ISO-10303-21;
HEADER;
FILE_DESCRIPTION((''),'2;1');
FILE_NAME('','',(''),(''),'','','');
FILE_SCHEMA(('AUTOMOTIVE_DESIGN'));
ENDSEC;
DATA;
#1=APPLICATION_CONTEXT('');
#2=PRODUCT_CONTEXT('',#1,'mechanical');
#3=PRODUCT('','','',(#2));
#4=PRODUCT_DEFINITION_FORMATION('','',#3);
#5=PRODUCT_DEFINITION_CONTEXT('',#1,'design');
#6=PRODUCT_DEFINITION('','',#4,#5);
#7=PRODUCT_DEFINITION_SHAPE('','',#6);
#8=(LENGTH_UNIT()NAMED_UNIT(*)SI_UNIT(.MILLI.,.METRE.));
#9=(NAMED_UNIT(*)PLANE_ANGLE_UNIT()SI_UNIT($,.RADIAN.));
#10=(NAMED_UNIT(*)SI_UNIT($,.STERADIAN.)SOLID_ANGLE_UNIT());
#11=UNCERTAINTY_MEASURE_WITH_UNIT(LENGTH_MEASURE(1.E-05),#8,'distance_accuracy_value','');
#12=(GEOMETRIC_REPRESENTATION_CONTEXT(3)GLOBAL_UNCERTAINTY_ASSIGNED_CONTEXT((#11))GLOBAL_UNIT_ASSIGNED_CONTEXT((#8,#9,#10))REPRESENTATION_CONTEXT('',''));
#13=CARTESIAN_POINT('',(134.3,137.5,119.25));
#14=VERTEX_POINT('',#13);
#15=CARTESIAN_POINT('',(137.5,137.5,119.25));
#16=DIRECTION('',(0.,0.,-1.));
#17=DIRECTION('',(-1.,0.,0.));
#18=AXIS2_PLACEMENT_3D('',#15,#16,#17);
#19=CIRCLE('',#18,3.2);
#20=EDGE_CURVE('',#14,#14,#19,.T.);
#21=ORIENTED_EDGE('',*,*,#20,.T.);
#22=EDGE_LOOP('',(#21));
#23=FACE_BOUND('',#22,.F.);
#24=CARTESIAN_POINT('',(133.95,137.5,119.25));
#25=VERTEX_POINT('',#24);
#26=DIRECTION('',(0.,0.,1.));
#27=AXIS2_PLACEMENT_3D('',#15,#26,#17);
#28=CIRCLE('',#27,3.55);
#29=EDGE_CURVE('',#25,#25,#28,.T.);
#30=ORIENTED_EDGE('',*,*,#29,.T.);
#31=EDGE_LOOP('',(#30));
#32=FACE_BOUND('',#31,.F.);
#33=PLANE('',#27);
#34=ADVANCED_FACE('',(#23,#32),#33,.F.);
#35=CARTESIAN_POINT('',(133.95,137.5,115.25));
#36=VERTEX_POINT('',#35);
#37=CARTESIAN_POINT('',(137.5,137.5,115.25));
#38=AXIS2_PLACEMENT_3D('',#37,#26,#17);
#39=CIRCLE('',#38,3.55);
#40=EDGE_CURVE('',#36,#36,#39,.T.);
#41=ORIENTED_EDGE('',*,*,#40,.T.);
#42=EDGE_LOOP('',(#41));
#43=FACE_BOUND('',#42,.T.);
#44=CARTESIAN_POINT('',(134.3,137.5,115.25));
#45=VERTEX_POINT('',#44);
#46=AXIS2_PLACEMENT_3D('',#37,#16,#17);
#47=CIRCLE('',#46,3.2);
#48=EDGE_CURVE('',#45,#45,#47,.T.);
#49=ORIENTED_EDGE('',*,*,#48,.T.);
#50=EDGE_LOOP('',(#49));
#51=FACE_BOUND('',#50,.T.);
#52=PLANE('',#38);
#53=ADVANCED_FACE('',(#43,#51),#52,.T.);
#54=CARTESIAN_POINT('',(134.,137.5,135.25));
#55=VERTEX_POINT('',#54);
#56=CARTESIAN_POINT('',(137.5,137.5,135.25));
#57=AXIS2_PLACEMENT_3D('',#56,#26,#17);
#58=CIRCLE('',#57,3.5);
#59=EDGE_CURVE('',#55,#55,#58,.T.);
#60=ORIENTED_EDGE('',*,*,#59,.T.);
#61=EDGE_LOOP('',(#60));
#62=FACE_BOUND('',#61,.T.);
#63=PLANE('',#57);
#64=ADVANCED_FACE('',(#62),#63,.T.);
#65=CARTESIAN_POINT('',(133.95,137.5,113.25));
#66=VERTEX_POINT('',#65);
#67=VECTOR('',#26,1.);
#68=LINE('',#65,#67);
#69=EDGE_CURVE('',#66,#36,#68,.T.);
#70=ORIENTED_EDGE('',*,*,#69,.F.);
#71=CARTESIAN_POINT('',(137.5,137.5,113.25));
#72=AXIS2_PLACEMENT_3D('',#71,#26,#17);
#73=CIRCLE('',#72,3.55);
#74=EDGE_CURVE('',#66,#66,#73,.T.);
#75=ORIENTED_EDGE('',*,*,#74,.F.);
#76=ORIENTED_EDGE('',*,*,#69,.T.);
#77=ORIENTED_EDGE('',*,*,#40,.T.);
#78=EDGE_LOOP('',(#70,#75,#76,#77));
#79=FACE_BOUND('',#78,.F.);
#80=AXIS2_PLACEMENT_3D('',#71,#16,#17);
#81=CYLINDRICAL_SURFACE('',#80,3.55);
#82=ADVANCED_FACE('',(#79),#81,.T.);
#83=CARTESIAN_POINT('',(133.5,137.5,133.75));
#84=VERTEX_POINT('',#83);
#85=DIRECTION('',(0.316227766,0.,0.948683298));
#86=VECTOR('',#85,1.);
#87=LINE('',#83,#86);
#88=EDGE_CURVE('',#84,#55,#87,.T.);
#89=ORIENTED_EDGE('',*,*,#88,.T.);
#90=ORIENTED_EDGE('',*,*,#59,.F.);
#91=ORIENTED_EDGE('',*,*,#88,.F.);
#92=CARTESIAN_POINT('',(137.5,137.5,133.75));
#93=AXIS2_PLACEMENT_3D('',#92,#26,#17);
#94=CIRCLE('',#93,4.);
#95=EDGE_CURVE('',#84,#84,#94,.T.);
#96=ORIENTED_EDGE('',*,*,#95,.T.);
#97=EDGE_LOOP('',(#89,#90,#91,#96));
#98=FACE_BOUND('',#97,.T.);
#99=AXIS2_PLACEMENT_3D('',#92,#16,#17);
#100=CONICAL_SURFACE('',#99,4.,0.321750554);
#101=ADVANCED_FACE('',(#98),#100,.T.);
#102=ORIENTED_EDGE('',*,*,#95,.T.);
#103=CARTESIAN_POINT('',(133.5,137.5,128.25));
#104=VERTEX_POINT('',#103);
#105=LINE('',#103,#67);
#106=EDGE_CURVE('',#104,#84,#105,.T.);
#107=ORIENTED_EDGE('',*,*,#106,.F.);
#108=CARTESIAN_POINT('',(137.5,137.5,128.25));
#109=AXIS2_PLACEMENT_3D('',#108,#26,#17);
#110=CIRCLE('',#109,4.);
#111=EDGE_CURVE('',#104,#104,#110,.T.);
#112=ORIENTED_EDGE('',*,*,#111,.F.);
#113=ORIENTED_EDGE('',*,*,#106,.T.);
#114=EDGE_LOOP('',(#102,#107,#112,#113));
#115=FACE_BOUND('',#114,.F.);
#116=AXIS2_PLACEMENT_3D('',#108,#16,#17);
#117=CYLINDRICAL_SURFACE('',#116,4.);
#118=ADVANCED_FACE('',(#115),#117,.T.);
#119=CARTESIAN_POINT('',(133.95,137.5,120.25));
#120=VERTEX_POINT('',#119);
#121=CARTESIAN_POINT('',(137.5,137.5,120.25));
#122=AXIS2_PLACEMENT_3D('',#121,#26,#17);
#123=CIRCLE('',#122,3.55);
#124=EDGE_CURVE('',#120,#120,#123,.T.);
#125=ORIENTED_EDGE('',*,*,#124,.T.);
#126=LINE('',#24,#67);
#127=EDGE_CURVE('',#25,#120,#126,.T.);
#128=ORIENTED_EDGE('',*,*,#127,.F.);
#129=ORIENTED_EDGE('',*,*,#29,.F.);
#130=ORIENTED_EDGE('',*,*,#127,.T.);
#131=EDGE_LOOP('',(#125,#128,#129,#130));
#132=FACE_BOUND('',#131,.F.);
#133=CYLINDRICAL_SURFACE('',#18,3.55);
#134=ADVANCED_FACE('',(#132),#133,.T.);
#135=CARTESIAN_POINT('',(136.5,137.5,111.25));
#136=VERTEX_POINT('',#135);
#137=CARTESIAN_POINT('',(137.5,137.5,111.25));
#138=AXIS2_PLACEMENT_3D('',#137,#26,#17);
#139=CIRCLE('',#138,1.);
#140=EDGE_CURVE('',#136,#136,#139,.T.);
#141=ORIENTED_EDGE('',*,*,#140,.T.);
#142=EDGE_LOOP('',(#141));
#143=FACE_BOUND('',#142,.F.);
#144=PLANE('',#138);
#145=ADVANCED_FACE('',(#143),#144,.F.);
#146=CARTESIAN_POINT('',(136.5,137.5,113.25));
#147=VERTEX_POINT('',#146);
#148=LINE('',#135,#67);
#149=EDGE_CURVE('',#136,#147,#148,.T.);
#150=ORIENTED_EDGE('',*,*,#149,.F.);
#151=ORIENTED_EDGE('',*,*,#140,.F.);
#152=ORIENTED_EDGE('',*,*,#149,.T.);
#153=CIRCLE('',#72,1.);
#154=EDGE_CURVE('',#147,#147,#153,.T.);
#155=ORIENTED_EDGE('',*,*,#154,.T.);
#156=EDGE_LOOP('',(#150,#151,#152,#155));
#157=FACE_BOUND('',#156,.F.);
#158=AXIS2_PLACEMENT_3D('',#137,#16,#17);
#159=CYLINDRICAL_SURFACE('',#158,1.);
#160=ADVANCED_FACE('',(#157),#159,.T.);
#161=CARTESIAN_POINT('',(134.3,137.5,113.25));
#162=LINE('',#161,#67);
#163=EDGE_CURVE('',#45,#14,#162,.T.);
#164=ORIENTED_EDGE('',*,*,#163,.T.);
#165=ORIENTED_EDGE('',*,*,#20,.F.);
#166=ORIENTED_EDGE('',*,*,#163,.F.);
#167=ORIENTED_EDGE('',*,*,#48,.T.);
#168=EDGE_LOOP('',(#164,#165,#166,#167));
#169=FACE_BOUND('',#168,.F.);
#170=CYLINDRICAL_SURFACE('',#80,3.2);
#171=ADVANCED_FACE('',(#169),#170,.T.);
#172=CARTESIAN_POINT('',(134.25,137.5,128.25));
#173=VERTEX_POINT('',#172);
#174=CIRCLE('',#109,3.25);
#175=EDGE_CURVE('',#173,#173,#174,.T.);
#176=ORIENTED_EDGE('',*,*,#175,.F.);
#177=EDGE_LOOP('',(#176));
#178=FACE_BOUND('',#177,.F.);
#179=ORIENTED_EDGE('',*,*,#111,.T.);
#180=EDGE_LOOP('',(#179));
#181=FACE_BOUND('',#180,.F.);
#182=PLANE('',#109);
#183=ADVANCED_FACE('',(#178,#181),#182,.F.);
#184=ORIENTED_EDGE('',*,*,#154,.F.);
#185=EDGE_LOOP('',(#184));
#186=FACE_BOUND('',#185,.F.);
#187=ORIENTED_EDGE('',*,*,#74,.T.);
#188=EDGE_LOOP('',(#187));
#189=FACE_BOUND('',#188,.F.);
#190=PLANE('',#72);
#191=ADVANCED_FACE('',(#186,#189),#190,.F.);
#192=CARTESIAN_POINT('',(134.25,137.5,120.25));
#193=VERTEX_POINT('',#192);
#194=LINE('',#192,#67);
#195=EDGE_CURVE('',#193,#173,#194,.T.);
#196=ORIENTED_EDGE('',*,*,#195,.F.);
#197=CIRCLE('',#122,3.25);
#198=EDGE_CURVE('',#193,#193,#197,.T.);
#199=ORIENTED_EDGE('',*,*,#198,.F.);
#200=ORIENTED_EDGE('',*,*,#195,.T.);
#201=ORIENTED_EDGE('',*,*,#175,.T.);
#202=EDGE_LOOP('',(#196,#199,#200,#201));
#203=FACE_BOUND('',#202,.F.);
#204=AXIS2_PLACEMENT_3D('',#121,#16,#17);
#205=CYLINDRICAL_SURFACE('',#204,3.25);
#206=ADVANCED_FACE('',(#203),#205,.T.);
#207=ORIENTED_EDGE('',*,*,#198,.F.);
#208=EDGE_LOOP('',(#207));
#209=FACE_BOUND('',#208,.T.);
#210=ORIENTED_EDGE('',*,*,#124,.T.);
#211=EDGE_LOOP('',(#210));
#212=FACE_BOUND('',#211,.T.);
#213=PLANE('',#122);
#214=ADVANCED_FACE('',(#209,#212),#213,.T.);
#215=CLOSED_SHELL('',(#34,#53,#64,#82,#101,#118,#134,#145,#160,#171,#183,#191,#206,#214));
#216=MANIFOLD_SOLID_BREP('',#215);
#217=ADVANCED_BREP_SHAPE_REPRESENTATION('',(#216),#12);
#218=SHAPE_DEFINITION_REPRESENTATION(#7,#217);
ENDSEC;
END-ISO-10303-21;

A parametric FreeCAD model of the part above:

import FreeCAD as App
import Part
import Sketcher
Q = App.Units.Quantity

doc = App.newDocument("Part")
params = doc.addObject("Spreadsheet::Sheet", "Params")
for row, (alias, value) in enumerate([
    ("sketch1_diameter", "6.4 mm"),
    ("pad1_length", "22 mm"),
    ("sketch2_diameter", "7.1 mm"),
    ("pad2_length", "2 mm"),
    ("sketch3_diameter", "7.1 mm"),
    ("pad3_length", "1 mm"),
    ("sketch4_diameter", "6.5 mm"),
    ("pad4_length", "8 mm"),
    ("sketch5_diameter", "8 mm"),
    ("pad5_length", "5.5 mm"),
    ("sketch6_width", "4 mm"),
    ("sketch6_width2", "3.5 mm"),
    ("sketch6_height", "1.5 mm"),
    ("revolution_angle", "360 deg"),
    ("sketch7_diameter", "2 mm"),
    ("pad6_length", "2 mm"),
], start=1):
    params.set(f"A{row}", alias)
    params.set(f"B{row}", "=" + value)
    params.setAlias(f"B{row}", alias)

body = doc.addObject("PartDesign::Body", "Body")

# Sketch on XY plane
sketch1 = body.newObject("Sketcher::SketchObject", "Sketch")
sketch1.AttachmentSupport = (doc.getObject("XY_Plane"), [""])
sketch1.MapMode = "FlatFace"
sketch1.AttachmentOffset = App.Placement(App.Vector(0, 0, 5), App.Rotation())
sketch1.addGeometry(Part.Circle(App.Vector(0, 0, 0), App.Vector(0, 0, 1), 3.2), False)
sketch1.addConstraint(Sketcher.Constraint("Coincident", 0, 3, -1, 1))
sketch1.addConstraint(Sketcher.Constraint("Diameter", 0, Q("6.4 mm")))
sketch1.setExpression("Constraints[1]", "Params.sketch1_diameter")
pad1 = body.newObject("PartDesign::Pad", "Pad")
pad1.Profile = sketch1
pad1.setExpression("Length", "Params.pad1_length")
body2 = doc.addObject("PartDesign::Body", "Body001")

# Sketch on XY plane
sketch2 = body2.newObject("Sketcher::SketchObject", "Sketch001")
sketch2.AttachmentSupport = (doc.getObject("XY_Plane001"), [""])
sketch2.MapMode = "FlatFace"
sketch2.AttachmentOffset = App.Placement(App.Vector(0, 0, 5), App.Rotation())
sketch2.addGeometry(Part.Circle(App.Vector(0, 0, 0), App.Vector(0, 0, 1), 3.5), False)
sketch2.addConstraint(Sketcher.Constraint("Coincident", 0, 3, -1, 1))
sketch2.addConstraint(Sketcher.Constraint("Diameter", 0, Q("7.1 mm")))
sketch2.setExpression("Constraints[1]", "Params.sketch2_diameter")
pad2 = body2.newObject("PartDesign::Pad", "Pad001")
pad2.Profile = sketch2
pad2.setExpression("Length", "Params.pad2_length")
body3 = doc.addObject("PartDesign::Body", "Body002")

# Sketch on XY plane
sketch3 = body3.newObject("Sketcher::SketchObject", "Sketch002")
sketch3.AttachmentSupport = (doc.getObject("XY_Plane002"), [""])
sketch3.MapMode = "FlatFace"
sketch3.AttachmentOffset = App.Placement(App.Vector(0, 0, 11), App.Rotation())
sketch3.addGeometry(Part.Circle(App.Vector(0, 0, 0), App.Vector(0, 0, 1), 3.5), False)
sketch3.addConstraint(Sketcher.Constraint("Coincident", 0, 3, -1, 1))
sketch3.addConstraint(Sketcher.Constraint("Diameter", 0, Q("7.1 mm")))
sketch3.setExpression("Constraints[1]", "Params.sketch3_diameter")
pad3 = body3.newObject("PartDesign::Pad", "Pad002")
pad3.Profile = sketch3
pad3.setExpression("Length", "Params.pad3_length")
body4 = doc.addObject("PartDesign::Body", "Body003")

# Sketch on XY plane
sketch4 = body4.newObject("Sketcher::SketchObject", "Sketch003")
sketch4.AttachmentSupport = (doc.getObject("XY_Plane003"), [""])
sketch4.MapMode = "FlatFace"
sketch4.AttachmentOffset = App.Placement(App.Vector(0, 0, 12), App.Rotation())
sketch4.addGeometry(Part.Circle(App.Vector(0, 0, 0), App.Vector(0, 0, 1), 3.2), False)
sketch4.addConstraint(Sketcher.Constraint("Coincident", 0, 3, -1, 1))
sketch4.addConstraint(Sketcher.Constraint("Diameter", 0, Q("6.5 mm")))
sketch4.setExpression("Constraints[1]", "Params.sketch4_diameter")
pad4 = body4.newObject("PartDesign::Pad", "Pad003")
pad4.Profile = sketch4
pad4.setExpression("Length", "Params.pad4_length")
body5 = doc.addObject("PartDesign::Body", "Body004")

# Sketch on XY plane
sketch5 = body5.newObject("Sketcher::SketchObject", "Sketch004")
sketch5.AttachmentSupport = (doc.getObject("XY_Plane004"), [""])
sketch5.MapMode = "FlatFace"
sketch5.AttachmentOffset = App.Placement(App.Vector(0, 0, 20), App.Rotation())
sketch5.addGeometry(Part.Circle(App.Vector(0, 0, 0), App.Vector(0, 0, 1), 4), False)
sketch5.addConstraint(Sketcher.Constraint("Coincident", 0, 3, -1, 1))
sketch5.addConstraint(Sketcher.Constraint("Diameter", 0, Q("8 mm")))
sketch5.setExpression("Constraints[1]", "Params.sketch5_diameter")
pad5 = body5.newObject("PartDesign::Pad", "Pad004")
pad5.Profile = sketch5
pad5.setExpression("Length", "Params.pad5_length")
body6 = doc.addObject("PartDesign::Body", "Body005")

# Sketch on XZ plane
sketch6 = body6.newObject("Sketcher::SketchObject", "Sketch005")
sketch6.AttachmentSupport = (doc.getObject("XZ_Plane005"), [""])
sketch6.MapMode = "FlatFace"
sketch6.addGeometry(Part.LineSegment(App.Vector(0, 25.5, 0), App.Vector(4, 25.5, 0)), False)
sketch6.addGeometry(Part.LineSegment(App.Vector(4, 25.5, 0), App.Vector(3.5, 27, 0)), False)
sketch6.addGeometry(Part.LineSegment(App.Vector(3.5, 27, 0), App.Vector(0, 27, 0)), False)
sketch6.addGeometry(Part.LineSegment(App.Vector(0, 27, 0), App.Vector(0, 25.5, 0)), False)
sketch6.addConstraint(Sketcher.Constraint("Coincident", 0, 2, 1, 1))
sketch6.addConstraint(Sketcher.Constraint("Coincident", 1, 2, 2, 1))
sketch6.addConstraint(Sketcher.Constraint("Coincident", 2, 2, 3, 1))
sketch6.addConstraint(Sketcher.Constraint("Coincident", 3, 2, 0, 1))
sketch6.addConstraint(Sketcher.Constraint("Horizontal", 0))
sketch6.addConstraint(Sketcher.Constraint("Horizontal", 2))
sketch6.addConstraint(Sketcher.Constraint("Vertical", 3))
sketch6.addConstraint(Sketcher.Constraint("PointOnObject", 2, 2, -2))
sketch6.addConstraint(Sketcher.Constraint("DistanceX", 0, 1, 0, 2, Q("4 mm")))
sketch6.addConstraint(Sketcher.Constraint("DistanceX", 2, 2, 2, 1, Q("3.5 mm")))
sketch6.addConstraint(Sketcher.Constraint("DistanceY", 3, 2, 3, 1, Q("1.5 mm")))
sketch6.addConstraint(Sketcher.Constraint("DistanceY", -1, 1, 1, 2, Q("27 mm")))
sketch6.setExpression("Constraints[8]", "Params.sketch6_width")
sketch6.setExpression("Constraints[9]", "Params.sketch6_width2")
sketch6.setExpression("Constraints[10]", "Params.sketch6_height")
revolution = body6.newObject("PartDesign::Revolution", "Revolution")
revolution.Profile = sketch6
revolution.ReferenceAxis = (sketch6, ["V_Axis"])
revolution.setExpression("Angle", "Params.revolution_angle")
doc.recompute()

boolean = body6.newObject("PartDesign::Boolean", "Boolean")
boolean.Type = "Fuse"
boolean.addObjects([body])
doc.recompute()

boolean2 = body6.newObject("PartDesign::Boolean", "Boolean001")
boolean2.Type = "Fuse"
boolean2.addObjects([body2])
doc.recompute()

boolean3 = body6.newObject("PartDesign::Boolean", "Boolean002")
boolean3.Type = "Fuse"
boolean3.addObjects([body3])
doc.recompute()

boolean4 = body6.newObject("PartDesign::Boolean", "Boolean003")
boolean4.Type = "Fuse"
boolean4.addObjects([body4])
doc.recompute()

boolean5 = body6.newObject("PartDesign::Boolean", "Boolean004")
boolean5.Type = "Fuse"
boolean5.addObjects([body5])
body7 = doc.addObject("PartDesign::Body", "Body006")

# Sketch on XY plane
sketch7 = body7.newObject("Sketcher::SketchObject", "Sketch006")
sketch7.AttachmentSupport = (doc.getObject("XY_Plane006"), [""])
sketch7.MapMode = "FlatFace"
sketch7.AttachmentOffset = App.Placement(App.Vector(0, 0, 3), App.Rotation())
sketch7.addGeometry(Part.Circle(App.Vector(0, 0, 0), App.Vector(0, 0, 1), 1), False)
sketch7.addConstraint(Sketcher.Constraint("Coincident", 0, 3, -1, 1))
sketch7.addConstraint(Sketcher.Constraint("Diameter", 0, Q("2 mm")))
sketch7.setExpression("Constraints[1]", "Params.sketch7_diameter")
pad6 = body7.newObject("PartDesign::Pad", "Pad005")
pad6.Profile = sketch7
pad6.setExpression("Length", "Params.pad6_length")
doc.recompute()

boolean6 = body7.newObject("PartDesign::Boolean", "Boolean005")
boolean6.Type = "Fuse"
boolean6.addObjects([body6])
body8 = doc.addObject("PartDesign::Body", "Body007")
doc.recompute()

body7.Placement = App.Placement(App.Vector(137.5, 137.5, 108.25), App.Rotation(App.Vector(0, 0, 1), 180))
boolean7 = body8.newObject("PartDesign::Boolean", "Boolean006")
boolean7.Type = "Fuse"
boolean7.addObjects([body7])

doc.recompute()
